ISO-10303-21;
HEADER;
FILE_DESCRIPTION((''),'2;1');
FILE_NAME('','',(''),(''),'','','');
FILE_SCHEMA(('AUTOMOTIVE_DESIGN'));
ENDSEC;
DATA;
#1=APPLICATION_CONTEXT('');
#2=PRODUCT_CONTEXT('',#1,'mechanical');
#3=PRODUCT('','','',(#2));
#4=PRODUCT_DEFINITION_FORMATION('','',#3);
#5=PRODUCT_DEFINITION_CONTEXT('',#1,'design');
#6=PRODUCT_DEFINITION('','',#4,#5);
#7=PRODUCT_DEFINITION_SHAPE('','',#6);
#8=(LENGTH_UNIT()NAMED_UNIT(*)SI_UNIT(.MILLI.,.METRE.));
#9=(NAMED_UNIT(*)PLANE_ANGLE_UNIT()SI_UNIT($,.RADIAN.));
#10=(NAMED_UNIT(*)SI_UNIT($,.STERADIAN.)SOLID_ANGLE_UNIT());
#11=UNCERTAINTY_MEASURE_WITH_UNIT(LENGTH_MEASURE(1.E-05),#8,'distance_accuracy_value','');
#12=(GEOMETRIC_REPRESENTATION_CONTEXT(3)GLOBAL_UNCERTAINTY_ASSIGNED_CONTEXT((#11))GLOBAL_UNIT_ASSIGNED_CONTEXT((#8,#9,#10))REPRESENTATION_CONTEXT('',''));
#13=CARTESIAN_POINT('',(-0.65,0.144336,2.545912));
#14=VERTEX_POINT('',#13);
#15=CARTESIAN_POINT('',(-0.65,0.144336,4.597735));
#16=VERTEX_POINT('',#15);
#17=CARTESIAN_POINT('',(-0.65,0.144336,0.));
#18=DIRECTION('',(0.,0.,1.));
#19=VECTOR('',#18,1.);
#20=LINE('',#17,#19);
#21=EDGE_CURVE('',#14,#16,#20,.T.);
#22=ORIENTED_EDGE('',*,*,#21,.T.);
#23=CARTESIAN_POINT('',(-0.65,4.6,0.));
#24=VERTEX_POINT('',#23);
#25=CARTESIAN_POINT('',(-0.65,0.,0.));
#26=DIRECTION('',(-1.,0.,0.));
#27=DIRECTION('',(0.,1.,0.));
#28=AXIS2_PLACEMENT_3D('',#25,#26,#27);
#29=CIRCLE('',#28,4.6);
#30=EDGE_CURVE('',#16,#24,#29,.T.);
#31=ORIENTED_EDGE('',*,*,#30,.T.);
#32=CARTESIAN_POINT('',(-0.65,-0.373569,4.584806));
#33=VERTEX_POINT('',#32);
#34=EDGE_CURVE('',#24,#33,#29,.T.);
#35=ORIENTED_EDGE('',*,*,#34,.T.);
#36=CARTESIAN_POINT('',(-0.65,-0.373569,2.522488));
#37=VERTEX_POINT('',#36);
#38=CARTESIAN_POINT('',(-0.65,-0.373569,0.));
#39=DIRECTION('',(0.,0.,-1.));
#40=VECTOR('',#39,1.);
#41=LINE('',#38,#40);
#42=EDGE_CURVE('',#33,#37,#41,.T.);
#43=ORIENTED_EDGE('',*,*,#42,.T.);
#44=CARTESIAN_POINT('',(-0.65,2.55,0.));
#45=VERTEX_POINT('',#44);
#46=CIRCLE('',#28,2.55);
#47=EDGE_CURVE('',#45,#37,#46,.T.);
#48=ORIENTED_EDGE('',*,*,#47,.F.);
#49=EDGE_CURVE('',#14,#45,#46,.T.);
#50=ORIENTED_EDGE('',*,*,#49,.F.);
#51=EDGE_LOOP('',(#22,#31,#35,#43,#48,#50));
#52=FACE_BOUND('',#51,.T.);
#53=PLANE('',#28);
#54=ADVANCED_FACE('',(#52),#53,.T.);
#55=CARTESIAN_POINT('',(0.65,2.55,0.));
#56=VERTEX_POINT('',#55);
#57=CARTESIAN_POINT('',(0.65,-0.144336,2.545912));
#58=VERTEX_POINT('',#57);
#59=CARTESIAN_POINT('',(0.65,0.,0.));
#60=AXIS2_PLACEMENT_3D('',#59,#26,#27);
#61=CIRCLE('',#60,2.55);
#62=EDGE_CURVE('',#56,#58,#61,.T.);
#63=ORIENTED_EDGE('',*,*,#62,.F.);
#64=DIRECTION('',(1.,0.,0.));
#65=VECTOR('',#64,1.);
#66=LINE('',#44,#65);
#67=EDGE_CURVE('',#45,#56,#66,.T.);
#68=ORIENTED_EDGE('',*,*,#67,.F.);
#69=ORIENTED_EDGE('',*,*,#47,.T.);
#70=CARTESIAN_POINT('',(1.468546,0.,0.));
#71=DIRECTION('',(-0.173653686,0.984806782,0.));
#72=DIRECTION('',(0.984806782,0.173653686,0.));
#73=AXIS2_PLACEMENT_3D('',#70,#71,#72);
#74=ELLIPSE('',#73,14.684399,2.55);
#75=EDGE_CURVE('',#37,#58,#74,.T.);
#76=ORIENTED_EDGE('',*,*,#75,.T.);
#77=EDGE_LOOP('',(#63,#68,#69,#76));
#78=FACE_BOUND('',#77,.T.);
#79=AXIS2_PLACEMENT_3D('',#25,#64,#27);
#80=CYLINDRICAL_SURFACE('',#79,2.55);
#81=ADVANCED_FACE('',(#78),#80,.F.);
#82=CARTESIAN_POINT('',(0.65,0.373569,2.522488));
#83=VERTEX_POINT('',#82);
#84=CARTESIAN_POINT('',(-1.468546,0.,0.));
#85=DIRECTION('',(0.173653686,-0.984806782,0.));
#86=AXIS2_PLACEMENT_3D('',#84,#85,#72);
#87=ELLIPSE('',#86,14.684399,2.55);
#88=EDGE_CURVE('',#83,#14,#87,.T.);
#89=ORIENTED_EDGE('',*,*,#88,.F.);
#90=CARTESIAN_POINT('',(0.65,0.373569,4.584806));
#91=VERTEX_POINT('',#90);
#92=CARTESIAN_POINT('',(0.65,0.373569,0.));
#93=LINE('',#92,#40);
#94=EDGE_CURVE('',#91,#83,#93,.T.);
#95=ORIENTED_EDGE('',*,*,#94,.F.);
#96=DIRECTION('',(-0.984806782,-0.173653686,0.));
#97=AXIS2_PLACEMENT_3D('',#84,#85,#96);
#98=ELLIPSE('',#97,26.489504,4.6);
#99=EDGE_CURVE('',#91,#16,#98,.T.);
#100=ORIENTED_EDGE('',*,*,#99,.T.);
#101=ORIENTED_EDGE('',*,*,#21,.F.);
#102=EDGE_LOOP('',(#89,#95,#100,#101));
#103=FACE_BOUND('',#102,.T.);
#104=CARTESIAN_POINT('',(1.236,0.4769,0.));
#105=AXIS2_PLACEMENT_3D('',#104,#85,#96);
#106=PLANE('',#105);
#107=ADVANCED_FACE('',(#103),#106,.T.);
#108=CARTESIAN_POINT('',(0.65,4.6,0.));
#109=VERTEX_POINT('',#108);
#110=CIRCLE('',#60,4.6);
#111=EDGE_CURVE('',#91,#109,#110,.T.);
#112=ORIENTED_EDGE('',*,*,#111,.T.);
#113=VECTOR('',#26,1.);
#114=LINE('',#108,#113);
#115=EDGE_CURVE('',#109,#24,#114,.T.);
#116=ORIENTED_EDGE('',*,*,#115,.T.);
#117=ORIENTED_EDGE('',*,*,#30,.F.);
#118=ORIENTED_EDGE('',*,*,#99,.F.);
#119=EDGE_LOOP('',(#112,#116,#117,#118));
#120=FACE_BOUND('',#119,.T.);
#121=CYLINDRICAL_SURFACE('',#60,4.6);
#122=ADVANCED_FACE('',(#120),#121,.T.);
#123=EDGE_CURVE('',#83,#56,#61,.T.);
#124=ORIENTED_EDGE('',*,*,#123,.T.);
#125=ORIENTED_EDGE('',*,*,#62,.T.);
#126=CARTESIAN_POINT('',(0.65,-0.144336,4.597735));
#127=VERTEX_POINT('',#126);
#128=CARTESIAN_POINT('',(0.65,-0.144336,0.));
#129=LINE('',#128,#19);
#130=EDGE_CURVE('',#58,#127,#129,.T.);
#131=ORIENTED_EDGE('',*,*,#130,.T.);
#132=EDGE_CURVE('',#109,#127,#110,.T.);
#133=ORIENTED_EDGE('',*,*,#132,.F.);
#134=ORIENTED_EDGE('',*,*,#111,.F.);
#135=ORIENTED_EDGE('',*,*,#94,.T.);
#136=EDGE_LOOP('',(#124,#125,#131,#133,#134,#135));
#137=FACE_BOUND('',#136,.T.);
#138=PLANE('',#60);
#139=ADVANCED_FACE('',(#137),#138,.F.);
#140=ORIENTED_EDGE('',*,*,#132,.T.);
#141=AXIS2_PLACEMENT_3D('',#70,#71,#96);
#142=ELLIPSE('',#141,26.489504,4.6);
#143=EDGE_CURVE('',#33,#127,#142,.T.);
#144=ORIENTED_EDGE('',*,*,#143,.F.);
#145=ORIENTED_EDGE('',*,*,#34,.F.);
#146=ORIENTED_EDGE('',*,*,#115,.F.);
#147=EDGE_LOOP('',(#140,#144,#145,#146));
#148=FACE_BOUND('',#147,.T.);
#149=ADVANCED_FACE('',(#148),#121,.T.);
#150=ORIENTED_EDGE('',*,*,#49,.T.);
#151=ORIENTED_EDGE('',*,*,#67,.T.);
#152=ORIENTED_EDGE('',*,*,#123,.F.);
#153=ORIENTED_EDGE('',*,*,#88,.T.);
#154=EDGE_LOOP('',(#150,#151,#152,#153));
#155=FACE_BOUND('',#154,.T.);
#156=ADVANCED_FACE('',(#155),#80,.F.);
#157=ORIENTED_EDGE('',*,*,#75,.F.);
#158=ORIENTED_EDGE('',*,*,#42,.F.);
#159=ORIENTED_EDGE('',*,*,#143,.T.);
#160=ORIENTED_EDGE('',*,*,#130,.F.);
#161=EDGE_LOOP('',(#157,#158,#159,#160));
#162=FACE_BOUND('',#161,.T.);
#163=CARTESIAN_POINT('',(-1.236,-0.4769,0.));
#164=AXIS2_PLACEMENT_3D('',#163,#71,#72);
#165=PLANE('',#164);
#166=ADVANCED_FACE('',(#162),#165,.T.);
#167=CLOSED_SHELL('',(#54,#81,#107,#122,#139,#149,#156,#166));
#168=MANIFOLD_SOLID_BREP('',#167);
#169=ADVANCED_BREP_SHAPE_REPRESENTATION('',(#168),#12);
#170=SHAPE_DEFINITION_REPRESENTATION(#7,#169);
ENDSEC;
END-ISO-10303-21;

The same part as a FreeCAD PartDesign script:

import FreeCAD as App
import Part
import Sketcher

V = App.Vector
Q = App.Units.Quantity


def add_polygon(sketch, points):
    """Adds a closed chain of lines whose ends are joined by coincident constraints."""
    first, n = sketch.GeometryCount, len(points)
    for a, b in zip(points, points[1:] + points[:1]):
        sketch.addGeometry(Part.LineSegment(App.Vector(*a, 0), App.Vector(*b, 0)), False)
    for i in range(n):
        sketch.addConstraint(Sketcher.Constraint("Coincident", first + i, 2, first + (i + 1) % n, 1))

doc = App.newDocument("Part")
params = doc.addObject("Spreadsheet::Sheet", "Params")
for row, (alias, value) in enumerate([
    ("sketch1_width", "1.3 mm"),
    ("sketch1_height", "2.05 mm"),
    ("revolution_angle", "360 deg"),
    ("sketch2_length", "2.6 mm"),
    ("sketch2_length2", "0.51 mm"),
    ("pocket1_length", "9.2 mm"),
], start=1):
    params.set(f"A{row}", alias)
    params.set(f"B{row}", "=" + value)
    params.setAlias(f"B{row}", alias)

body = doc.addObject("PartDesign::Body", "Body")

sketch1 = body.newObject("Sketcher::SketchObject", "Sketch")
sketch1.AttachmentSupport = (doc.getObject("XY_Plane"), [""])
sketch1.MapMode = "FlatFace"
add_polygon(sketch1, [(-0.65, 4.6), (-0.65, 2.55), (0.65, 2.55), (0.65, 4.6)])
sketch1.addConstraint([
    Sketcher.Constraint("Vertical", 0),
    Sketcher.Constraint("Horizontal", 1),
    Sketcher.Constraint("Vertical", 2),
    Sketcher.Constraint("Horizontal", 3),
    Sketcher.Constraint("DistanceX", 1, 1, 1, 2, 1.3),
    Sketcher.Constraint("DistanceY", 0, 2, 0, 1, 2.05),
    Sketcher.Constraint("DistanceY", -1, 1, 2, 2, 4.6),
    Sketcher.Constraint("DistanceX", 0, 2, -1, 1, 0.65),
])
sketch1.setExpression("Constraints[8]", "Params.sketch1_width")
sketch1.setExpression("Constraints[9]", "Params.sketch1_height")
revolution = body.newObject("PartDesign::Revolution", "Revolution")
revolution.Profile = sketch1
revolution.ReferenceAxis = (sketch1, ["H_Axis"])
revolution.setExpression("Angle", "Params.revolution_angle")

sketch2 = body.newObject("Sketcher::SketchObject", "Sketch001")
sketch2.AttachmentSupport = (doc.getObject("XY_Plane"), [""])
sketch2.MapMode = "FlatFace"
add_polygon(sketch2, [(1.236, 0.4769), (-1.3245, 0.0254), (-1.236, -0.4769), (1.3245, -0.0254)])
sketch2.addConstraint([
    Sketcher.Constraint("Symmetric", 0, 2, 2, 2, -1, 1),
    Sketcher.Constraint("Symmetric", 1, 2, 3, 2, -1, 1),
    Sketcher.Constraint("Perpendicular", 0, 1),
    Sketcher.Constraint("Angle", 0, Q("-169.9997 deg")),
    Sketcher.Constraint("Distance", 0, 2.6),
    Sketcher.Constraint("Distance", 1, 0.51),
])
sketch2.setExpression("Constraints[8]", "Params.sketch2_length")
sketch2.setExpression("Constraints[9]", "Params.sketch2_length2")
pocket1 = body.newObject("PartDesign::Pocket", "Pocket")
pocket1.Profile = sketch2
pocket1.setExpression("Length", "Params.pocket1_length")
pocket1.Reversed = True

doc.recompute()
